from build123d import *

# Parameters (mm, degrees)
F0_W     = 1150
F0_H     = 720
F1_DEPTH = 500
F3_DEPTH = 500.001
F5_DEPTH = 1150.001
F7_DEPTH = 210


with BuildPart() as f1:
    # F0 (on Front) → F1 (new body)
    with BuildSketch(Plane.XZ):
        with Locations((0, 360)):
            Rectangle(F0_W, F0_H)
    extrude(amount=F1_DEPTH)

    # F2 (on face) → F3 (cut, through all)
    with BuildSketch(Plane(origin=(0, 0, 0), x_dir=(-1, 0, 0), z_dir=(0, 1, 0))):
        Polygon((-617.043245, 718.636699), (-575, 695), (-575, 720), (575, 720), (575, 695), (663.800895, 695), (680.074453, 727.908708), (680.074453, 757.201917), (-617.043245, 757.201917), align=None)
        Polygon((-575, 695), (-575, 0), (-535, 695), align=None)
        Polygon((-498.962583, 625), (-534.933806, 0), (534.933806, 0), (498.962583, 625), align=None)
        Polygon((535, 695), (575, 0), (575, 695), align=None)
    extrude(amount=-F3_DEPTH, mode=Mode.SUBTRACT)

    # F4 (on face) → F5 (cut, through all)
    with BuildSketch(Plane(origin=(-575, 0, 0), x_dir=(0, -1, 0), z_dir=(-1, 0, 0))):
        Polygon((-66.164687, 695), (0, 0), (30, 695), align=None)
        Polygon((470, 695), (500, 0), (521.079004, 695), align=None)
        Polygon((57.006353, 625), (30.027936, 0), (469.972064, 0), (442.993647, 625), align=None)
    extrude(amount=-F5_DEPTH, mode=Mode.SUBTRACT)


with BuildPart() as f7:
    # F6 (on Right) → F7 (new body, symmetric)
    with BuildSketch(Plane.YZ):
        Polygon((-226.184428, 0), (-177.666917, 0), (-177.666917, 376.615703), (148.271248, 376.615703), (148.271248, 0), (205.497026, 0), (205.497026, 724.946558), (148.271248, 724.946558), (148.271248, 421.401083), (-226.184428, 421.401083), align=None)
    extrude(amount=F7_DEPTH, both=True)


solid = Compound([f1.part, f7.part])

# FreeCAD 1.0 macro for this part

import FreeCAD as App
import Part
import Sketcher

V = App.Vector
Q = App.Units.Quantity


def add_polygon(sketch, points):
    """Adds a closed chain of lines whose ends are joined by coincident constraints."""
    first, n = sketch.GeometryCount, len(points)
    for a, b in zip(points, points[1:] + points[:1]):
        sketch.addGeometry(Part.LineSegment(App.Vector(*a, 0), App.Vector(*b, 0)), False)
    for i in range(n):
        sketch.addConstraint(Sketcher.Constraint("Coincident", first + i, 2, first + (i + 1) % n, 1))

doc = App.newDocument("Part")
body = doc.addObject("PartDesign::Body", "Body")

# Sketch on XZ plane
sketch1 = doc.addObject("Sketcher::SketchObject", "Sketch")
body.addObject(sketch1)
sketch1.AttachmentSupport = (doc.XZ_Plane, [""])
sketch1.MapMode = "FlatFace"
add_polygon(sketch1, [(-575, 720), (-575, 0), (575, 0), (575, 720)])  # lines 0-3
sketch1.addConstraint(Sketcher.Constraint("Vertical", 0))
sketch1.addConstraint(Sketcher.Constraint("Horizontal", 1))
sketch1.addConstraint(Sketcher.Constraint("Vertical", 2))
sketch1.addConstraint(Sketcher.Constraint("Horizontal", 3))
sketch1.addConstraint(Sketcher.Constraint("Symmetric", 0, 2, 1, 2, -1, 1))
sketch1.addConstraint(Sketcher.Constraint("DistanceX", 1, 1, 1, 2, Q("1150 mm")))
sketch1.addConstraint(Sketcher.Constraint("DistanceY", 0, 2, 0, 1, Q("720 mm")))
pad1 = doc.addObject("PartDesign::Pad", "Pad")
body.addObject(pad1)
pad1.Profile = sketch1
pad1.Length = 500

# Sketch on XZ plane
sketch2 = doc.addObject("Sketcher::SketchObject", "Sketch001")
body.addObject(sketch2)
sketch2.AttachmentSupport = (doc.XZ_Plane, [""])
sketch2.MapMode = "FlatFace"
add_polygon(sketch2, [(617, 719), (575, 695), (575, 720), (-575, 720), (-575, 695), (-664, 695), (-680, 728), (-680, 757), (617, 757)])  # lines 0-8
add_polygon(sketch2, [(575, 695), (575, 0), (535, 695)])  # lines 9-11
add_polygon(sketch2, [(499, 625), (535, 0), (-535, 0), (-499, 625)])  # lines 12-15
add_polygon(sketch2, [(-535, 695), (-575, 0), (-575, 695)])  # lines 16-18
sketch2.addConstraint(Sketcher.Constraint("Vertical", 1))
sketch2.addConstraint(Sketcher.Constraint("Horizontal", 2))
sketch2.addConstraint(Sketcher.Constraint("Vertical", 3))
sketch2.addConstraint(Sketcher.Constraint("Horizontal", 4))
sketch2.addConstraint(Sketcher.Constraint("Vertical", 6))
sketch2.addConstraint(Sketcher.Constraint("Horizontal", 7))
sketch2.addConstraint(Sketcher.Constraint("Vertical", 8))
sketch2.addConstraint(Sketcher.Constraint("Vertical", 9))
sketch2.addConstraint(Sketcher.Constraint("Horizontal", 11))
sketch2.addConstraint(Sketcher.Constraint("Horizontal", 13))
sketch2.addConstraint(Sketcher.Constraint("Horizontal", 15))
sketch2.addConstraint(Sketcher.Constraint("Vertical", 17))
sketch2.addConstraint(Sketcher.Constraint("Horizontal", 18))
sketch2.addConstraint(Sketcher.Constraint("Coincident", 11, 2, 0, 2))
sketch2.addConstraint(Sketcher.Constraint("Coincident", 17, 2, 3, 2))
sketch2.addConstraint(Sketcher.Constraint("Symmetric", 12, 2, 13, 2, -1, 1))
sketch2.addConstraint(Sketcher.Constraint("Symmetric", 9, 2, 16, 2, -1, 1))
sketch2.addConstraint(Sketcher.Constraint("Symmetric", 10, 2, 18, 2, -2))
sketch2.addConstraint(Sketcher.Constraint("PointOnObject", 9, 2, -1))
sketch2.addConstraint(Sketcher.Constraint("Parallel", 10, 12))
sketch2.addConstraint(Sketcher.Constraint("Parallel", 14, 16))
sketch2.addConstraint(Sketcher.Constraint("DistanceX", 2, 2, 2, 1, Q("1150 mm")))
sketch2.addConstraint(Sketcher.Constraint("DistanceX", 11, 1, 11, 2, Q("40 mm")))
sketch2.addConstraint(Sketcher.Constraint("DistanceY", 1, 1, 1, 2, Q("25 mm")))
sketch2.addConstraint(Sketcher.Constraint("DistanceY", 9, 2, 9, 1, Q("695 mm")))
sketch2.addConstraint(Sketcher.Constraint("DistanceY", -1, 1, 14, 2, Q("625 mm")))
sketch2.addConstraint(Sketcher.Constraint("DistanceX", 7, 1, 7, 2, Q("1297.117698 mm")))
sketch2.addConstraint(Sketcher.Constraint("DistanceX", 13, 2, 13, 1, Q("1069.867612 mm")))
sketch2.addConstraint(Sketcher.Constraint("DistanceY", 6, 1, 6, 2, Q("29.293209 mm")))
sketch2.addConstraint(Sketcher.Constraint("DistanceY", -1, 1, 8, 2, Q("718.636699 mm")))
sketch2.addConstraint(Sketcher.Constraint("DistanceX", 4, 2, 4, 1, Q("88.800895 mm")))
sketch2.addConstraint(Sketcher.Constraint("DistanceY", 8, 2, 8, 1, Q("38.565218 mm")))
sketch2.addConstraint(Sketcher.Constraint("DistanceX", 4, 2, 7, 2, Q("1280.84414 mm")))
pocket1 = doc.addObject("PartDesign::Pocket", "Pocket")
body.addObject(pocket1)
pocket1.Profile = sketch2
pocket1.Type = "ThroughAll"
pocket1.Reversed = True

# Sketch on YZ plane
sketch3 = doc.addObject("Sketcher::SketchObject", "Sketch002")
body.addObject(sketch3)
sketch3.AttachmentSupport = (doc.YZ_Plane, [""])
sketch3.MapMode = "FlatFace"
sketch3.AttachmentOffset = App.Placement(V(0, 0, -575), App.Rotation())
add_polygon(sketch3, [(66, 695), (0, 0), (-30, 695)])  # lines 0-2
add_polygon(sketch3, [(-470, 695), (-500, 0), (-521, 695)])  # lines 3-5
add_polygon(sketch3, [(-57, 625), (-30, 0), (-470, 0), (-443, 625)])  # lines 6-9
sketch3.addConstraint(Sketcher.Constraint("Horizontal", 2))
sketch3.addConstraint(Sketcher.Constraint("Horizontal", 5))
sketch3.addConstraint(Sketcher.Constraint("Horizontal", 7))
sketch3.addConstraint(Sketcher.Constraint("Horizontal", 9))
sketch3.addConstraint(Sketcher.Constraint("Coincident", 0, 2, -1, 1))
sketch3.addConstraint(Sketcher.Constraint("PointOnObject", 3, 2, -1))
sketch3.addConstraint(Sketcher.Constraint("PointOnObject", 6, 2, -1))
sketch3.addConstraint(Sketcher.Constraint("Parallel", 1, 6))
sketch3.addConstraint(Sketcher.Constraint("Parallel", 3, 8))
sketch3.addConstraint(Sketcher.Constraint("Horizontal", 2, 2, 4, 2))
sketch3.addConstraint(Sketcher.Constraint("Equal", 1, 3))
sketch3.addConstraint(Sketcher.Constraint("DistanceX", 1, 2, -1, 1, Q("30 mm")))
sketch3.addConstraint(Sketcher.Constraint("DistanceY", -1, 1, 1, 2, Q("695 mm")))
sketch3.addConstraint(Sketcher.Constraint("DistanceX", 3, 2, -1, 1, Q("500 mm")))
sketch3.addConstraint(Sketcher.Constraint("DistanceY", -1, 1, 8, 2, Q("625 mm")))
sketch3.addConstraint(Sketcher.Constraint("DistanceX", 7, 2, 7, 1, Q("439.944128 mm")))
sketch3.addConstraint(Sketcher.Constraint("DistanceX", 2, 1, 2, 2, Q("96.164687 mm")))
sketch3.addConstraint(Sketcher.Constraint("DistanceX", 5, 1, 5, 2, Q("51.079004 mm")))
sketch3.addConstraint(Sketcher.Constraint("DistanceX", 4, 2, 7, 2, Q("51.10694 mm")))
pocket2 = doc.addObject("PartDesign::Pocket", "Pocket001")
body.addObject(pocket2)
pocket2.Profile = sketch3
pocket2.Type = "ThroughAll"
pocket2.Reversed = True
body2 = doc.addObject("PartDesign::Body", "Body001")

# Sketch on YZ plane
sketch4 = doc.addObject("Sketcher::SketchObject", "Sketch003")
body2.addObject(sketch4)
sketch4.AttachmentSupport = (doc.getObject("YZ_Plane001"), [""])
sketch4.MapMode = "FlatFace"
add_polygon(sketch4, [(-226, 0), (-178, 0), (-178, 377), (148, 377), (148, 0), (205, 0), (205, 725), (148, 725), (148, 421), (-226, 421)])  # lines 0-9
sketch4.addConstraint(Sketcher.Constraint("Horizontal", 0))
sketch4.addConstraint(Sketcher.Constraint("Vertical", 1))
sketch4.addConstraint(Sketcher.Constraint("Horizontal", 2))
sketch4.addConstraint(Sketcher.Constraint("Vertical", 3))
sketch4.addConstraint(Sketcher.Constraint("Horizontal", 4))
sketch4.addConstraint(Sketcher.Constraint("Vertical", 5))
sketch4.addConstraint(Sketcher.Constraint("Horizontal", 6))
sketch4.addConstraint(Sketcher.Constraint("Vertical", 7))
sketch4.addConstraint(Sketcher.Constraint("Horizontal", 8))
sketch4.addConstraint(Sketcher.Constraint("Vertical", 9))
sketch4.addConstraint(Sketcher.Constraint("PointOnObject", 0, 2, -1))
sketch4.addConstraint(Sketcher.Constraint("PointOnObject", 3, 2, -1))
sketch4.addConstraint(Sketcher.Constraint("Vertical", 3, 2, 6, 2))
sketch4.addConstraint(Sketcher.Constraint("DistanceX", 0, 1, 0, 2, Q("48.517511 mm")))
sketch4.addConstraint(Sketcher.Constraint("DistanceY", 5, 1, 5, 2, Q("724.946558 mm")))
sketch4.addConstraint(Sketcher.Constraint("DistanceX", 2, 1, 2, 2, Q("325.938165 mm")))
sketch4.addConstraint(Sketcher.Constraint("DistanceX", 4, 1, 4, 2, Q("57.225778 mm")))
sketch4.addConstraint(Sketcher.Constraint("DistanceY", 1, 1, 1, 2, Q("376.615703 mm")))
sketch4.addConstraint(Sketcher.Constraint("DistanceY", 7, 2, 7, 1, Q("303.545475 mm")))
sketch4.addConstraint(Sketcher.Constraint("DistanceX", -1, 1, 2, 2, Q("148.271248 mm")))
pad2 = doc.addObject("PartDesign::Pad", "Pad001")
body2.addObject(pad2)
pad2.Profile = sketch4
pad2.Length = 420
pad2.Midplane = True

doc.recompute()
